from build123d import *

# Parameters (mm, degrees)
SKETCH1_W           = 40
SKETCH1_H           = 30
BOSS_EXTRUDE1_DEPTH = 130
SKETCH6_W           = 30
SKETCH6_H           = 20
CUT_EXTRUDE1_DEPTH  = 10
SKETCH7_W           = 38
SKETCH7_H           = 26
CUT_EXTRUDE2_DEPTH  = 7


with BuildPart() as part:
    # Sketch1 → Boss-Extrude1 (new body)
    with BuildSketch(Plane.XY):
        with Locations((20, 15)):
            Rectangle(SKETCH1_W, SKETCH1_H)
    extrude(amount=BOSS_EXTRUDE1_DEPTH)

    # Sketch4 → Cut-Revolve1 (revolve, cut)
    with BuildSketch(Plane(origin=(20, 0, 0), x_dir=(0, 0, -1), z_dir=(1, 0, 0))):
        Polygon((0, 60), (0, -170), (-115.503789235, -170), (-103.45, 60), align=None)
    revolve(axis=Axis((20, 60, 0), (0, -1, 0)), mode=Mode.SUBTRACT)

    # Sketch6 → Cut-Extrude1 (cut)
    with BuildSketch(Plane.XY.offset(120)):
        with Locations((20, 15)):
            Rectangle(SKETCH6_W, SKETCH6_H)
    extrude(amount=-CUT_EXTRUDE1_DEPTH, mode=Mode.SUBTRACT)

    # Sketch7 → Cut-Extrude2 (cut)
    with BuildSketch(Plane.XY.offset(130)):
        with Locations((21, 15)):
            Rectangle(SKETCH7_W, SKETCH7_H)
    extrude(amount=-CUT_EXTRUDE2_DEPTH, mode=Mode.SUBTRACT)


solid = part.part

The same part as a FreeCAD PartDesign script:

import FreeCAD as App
import Part
import Sketcher
from FreeCAD import Vector
Q = App.Units.Quantity


def add_polygon(sketch, points):
    """Adds a closed chain of lines whose ends are joined by coincident constraints."""
    first, n = sketch.GeometryCount, len(points)
    for a, b in zip(points, points[1:] + points[:1]):
        sketch.addGeometry(Part.LineSegment(App.Vector(*a, 0), App.Vector(*b, 0)), False)
    for i in range(n):
        sketch.addConstraint(Sketcher.Constraint("Coincident", first + i, 2, first + (i + 1) % n, 1))

doc = App.newDocument("Part")
params = doc.addObject("Spreadsheet::Sheet", "Params")
for row, (alias, value) in enumerate([
    ("sketch1_width", "40 mm"),
    ("sketch1_height", "30 mm"),
    ("pad1_length", "130 mm"),
    ("sketch2_width", "230 mm"),
    ("sketch2_height", "103.45 mm"),
    ("groove_angle", "360 deg"),
    ("sketch3_width", "30 mm"),
    ("sketch3_height", "20 mm"),
    ("pocket1_length", "10 mm"),
    ("sketch4_width", "38 mm"),
    ("sketch4_height", "26 mm"),
    ("pocket2_length", "7 mm"),
], start=1):
    params.set(f"A{row}", alias)
    params.set(f"B{row}", "=" + value)
    params.setAlias(f"B{row}", alias)

body = doc.addObject("PartDesign::Body", "Body")

# Sketch on XY plane
sketch1 = body.newObject("Sketcher::SketchObject", "Sketch")
sketch1.AttachmentSupport = (doc.getObject("XY_Plane"), [""])
sketch1.MapMode = "FlatFace"
add_polygon(sketch1, [(0, 30), (0, 0), (40, 0), (40, 30)])  # lines 0-3
sketch1.addConstraint([
    Sketcher.Constraint("Vertical", 0),
    Sketcher.Constraint("Horizontal", 1),
    Sketcher.Constraint("Vertical", 2),
    Sketcher.Constraint("Horizontal", 3),
    Sketcher.Constraint("Coincident", 0, 2, -1, 1),
    Sketcher.Constraint("DistanceX", 1, 1, 1, 2, Q("40 mm")),
    Sketcher.Constraint("DistanceY", 0, 2, 0, 1, Q("30 mm")),
])
sketch1.setExpression("Constraints[9]", "Params.sketch1_width")
sketch1.setExpression("Constraints[10]", "Params.sketch1_height")
pad1 = body.newObject("PartDesign::Pad", "Pad")
pad1.Profile = sketch1
pad1.setExpression("Length", "Params.pad1_length")

# Sketch on YZ plane
sketch2 = body.newObject("Sketcher::SketchObject", "Sketch001")
sketch2.AttachmentSupport = (doc.getObject("YZ_Plane"), [""])
sketch2.MapMode = "FlatFace"
sketch2.AttachmentOffset = App.Placement(Vector(0, 0, 20), App.Rotation())
add_polygon(sketch2, [(-170, 0), (60, 0), (60, 103), (-170, 116)])  # lines 0-3
sketch2.addConstraint([
    Sketcher.Constraint("Horizontal", 0),
    Sketcher.Constraint("Vertical", 1),
    Sketcher.Constraint("Vertical", 3),
    Sketcher.Constraint("PointOnObject", 0, 2, -1),
    Sketcher.Constraint("DistanceX", 0, 1, 0, 2, Q("230 mm")),
    Sketcher.Constraint("Angle", 2, Q("177 deg")),
    Sketcher.Constraint("DistanceX", -1, 1, 0, 2, Q("60 mm")),
    Sketcher.Constraint("DistanceY", 1, 1, 1, 2, Q("103.45 mm")),
])
sketch2.setExpression("Constraints[8]", "Params.sketch2_width")
sketch2.setExpression("Constraints[11]", "Params.sketch2_height")
groove = body.newObject("PartDesign::Groove", "Groove")
groove.Profile = sketch2
groove.ReferenceAxis = (sketch2, ["H_Axis"])
groove.setExpression("Angle", "Params.groove_angle")

# Sketch on XY plane
sketch3 = body.newObject("Sketcher::SketchObject", "Sketch002")
sketch3.AttachmentSupport = (doc.getObject("XY_Plane"), [""])
sketch3.MapMode = "FlatFace"
sketch3.AttachmentOffset = App.Placement(Vector(0, 0, 120), App.Rotation())
add_polygon(sketch3, [(5, 25), (5, 5), (35, 5), (35, 25)])  # lines 0-3
sketch3.addConstraint([
    Sketcher.Constraint("Vertical", 0),
    Sketcher.Constraint("Horizontal", 1),
    Sketcher.Constraint("Vertical", 2),
    Sketcher.Constraint("Horizontal", 3),
    Sketcher.Constraint("DistanceX", 1, 1, 1, 2, Q("30 mm")),
    Sketcher.Constraint("DistanceY", 0, 2, 0, 1, Q("20 mm")),
    Sketcher.Constraint("DistanceX", -1, 1, 0, 2, Q("5 mm")),
    Sketcher.Constraint("DistanceY", -1, 1, 0, 2, Q("5 mm")),
])
sketch3.setExpression("Constraints[8]", "Params.sketch3_width")
sketch3.setExpression("Constraints[9]", "Params.sketch3_height")
pocket1 = body.newObject("PartDesign::Pocket", "Pocket")
pocket1.Profile = sketch3
pocket1.setExpression("Length", "Params.pocket1_length")

# Sketch on XY plane
sketch4 = body.newObject("Sketcher::SketchObject", "Sketch003")
sketch4.AttachmentSupport = (doc.getObject("XY_Plane"), [""])
sketch4.MapMode = "FlatFace"
sketch4.AttachmentOffset = App.Placement(Vector(0, 0, 130), App.Rotation())
add_polygon(sketch4, [(2, 28), (2, 2), (40, 2), (40, 28)])  # lines 0-3
sketch4.addConstraint([
    Sketcher.Constraint("Vertical", 0),
    Sketcher.Constraint("Horizontal", 1),
    Sketcher.Constraint("Vertical", 2),
    Sketcher.Constraint("Horizontal", 3),
    Sketcher.Constraint("DistanceX", 1, 1, 1, 2, Q("38 mm")),
    Sketcher.Constraint("DistanceY", 0, 2, 0, 1, Q("26 mm")),
    Sketcher.Constraint("DistanceX", -1, 1, 0, 2, Q("2 mm")),
    Sketcher.Constraint("DistanceY", -1, 1, 0, 2, Q("2 mm")),
])
sketch4.setExpression("Constraints[8]", "Params.sketch4_width")
sketch4.setExpression("Constraints[9]", "Params.sketch4_height")
pocket2 = body.newObject("PartDesign::Pocket", "Pocket001")
pocket2.Profile = sketch4
pocket2.setExpression("Length", "Params.pocket2_length")

doc.recompute()
